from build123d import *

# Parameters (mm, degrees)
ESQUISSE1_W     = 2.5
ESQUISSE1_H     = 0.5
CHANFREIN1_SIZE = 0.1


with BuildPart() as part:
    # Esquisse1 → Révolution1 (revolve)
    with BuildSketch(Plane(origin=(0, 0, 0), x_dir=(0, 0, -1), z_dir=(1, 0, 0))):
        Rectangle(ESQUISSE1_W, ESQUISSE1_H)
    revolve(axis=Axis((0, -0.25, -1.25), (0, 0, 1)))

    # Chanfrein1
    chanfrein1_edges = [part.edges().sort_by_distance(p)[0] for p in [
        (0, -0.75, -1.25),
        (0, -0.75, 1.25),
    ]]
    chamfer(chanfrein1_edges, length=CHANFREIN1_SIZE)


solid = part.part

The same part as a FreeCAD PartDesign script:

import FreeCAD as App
import Part
import Sketcher


def edges_at(feature, points):
    """Names of the edges that pass closest to the given points."""
    edges = feature.Shape.Edges
    near = lambda p: min(range(len(edges)), key=lambda i: edges[i].distToShape(Part.Vertex(*p))[0])
    return sorted({f"Edge{near(p) + 1}" for p in points})


def add_polygon(sketch, points):
    """Adds a closed chain of lines whose ends are joined by coincident constraints."""
    first, n = sketch.GeometryCount, len(points)
    for a, b in zip(points, points[1:] + points[:1]):
        sketch.addGeometry(Part.LineSegment(App.Vector(*a, 0), App.Vector(*b, 0)), False)
    for i in range(n):
        sketch.addConstraint(Sketcher.Constraint("Coincident", first + i, 2, first + (i + 1) % n, 1))

doc = App.newDocument("Part")
body = doc.addObject("PartDesign::Body", "Body")

# Sketch on YZ plane
sketch1 = body.newObject("Sketcher::SketchObject", "Sketch")
sketch1.AttachmentSupport = (doc.getObject("YZ_Plane"), [""])
sketch1.MapMode = "FlatFace"
add_polygon(sketch1, [(0.2, 1.2), (-0.2, 1.2), (-0.2, -1.2), (0.2, -1.2)])  # lines 0-3
sketch1.addGeometry(Part.LineSegment(App.Vector(-0.2, -1.2, 0), App.Vector(-0.2, 1.2, 0)), True)  # axis
sketch1.addConstraint(Sketcher.Constraint("Horizontal", 0))
sketch1.addConstraint(Sketcher.Constraint("Vertical", 1))
sketch1.addConstraint(Sketcher.Constraint("Horizontal", 2))
sketch1.addConstraint(Sketcher.Constraint("Vertical", 3))
sketch1.addConstraint(Sketcher.Constraint("Vertical", 4))
sketch1.addConstraint(Sketcher.Constraint("Coincident", 4, 1, 1, 2))
sketch1.addConstraint(Sketcher.Constraint("Symmetric", 0, 2, 2, 2, -1, 1))
sketch1.addConstraint(Sketcher.Constraint("Horizontal", 3, 2, 4, 2))
sketch1.addConstraint(Sketcher.Constraint("DistanceX", 0, 2, 0, 1, 0.5))
sketch1.addConstraint(Sketcher.Constraint("DistanceY", 1, 2, 1, 1, 2.5))
revolution = body.newObject("PartDesign::Revolution", "Revolution")
revolution.Profile = sketch1
revolution.ReferenceAxis = (sketch1, ["Axis0"])
revolution.Angle = 360
doc.recompute()

chamfer = body.newObject("PartDesign::Chamfer", "Chamfer")
chamfer.Base = (revolution, edges_at(revolution, [(0, -0.75, -1.25), (0, -0.75, 1.25)]))
chamfer.Size = 0.1

doc.recompute()
